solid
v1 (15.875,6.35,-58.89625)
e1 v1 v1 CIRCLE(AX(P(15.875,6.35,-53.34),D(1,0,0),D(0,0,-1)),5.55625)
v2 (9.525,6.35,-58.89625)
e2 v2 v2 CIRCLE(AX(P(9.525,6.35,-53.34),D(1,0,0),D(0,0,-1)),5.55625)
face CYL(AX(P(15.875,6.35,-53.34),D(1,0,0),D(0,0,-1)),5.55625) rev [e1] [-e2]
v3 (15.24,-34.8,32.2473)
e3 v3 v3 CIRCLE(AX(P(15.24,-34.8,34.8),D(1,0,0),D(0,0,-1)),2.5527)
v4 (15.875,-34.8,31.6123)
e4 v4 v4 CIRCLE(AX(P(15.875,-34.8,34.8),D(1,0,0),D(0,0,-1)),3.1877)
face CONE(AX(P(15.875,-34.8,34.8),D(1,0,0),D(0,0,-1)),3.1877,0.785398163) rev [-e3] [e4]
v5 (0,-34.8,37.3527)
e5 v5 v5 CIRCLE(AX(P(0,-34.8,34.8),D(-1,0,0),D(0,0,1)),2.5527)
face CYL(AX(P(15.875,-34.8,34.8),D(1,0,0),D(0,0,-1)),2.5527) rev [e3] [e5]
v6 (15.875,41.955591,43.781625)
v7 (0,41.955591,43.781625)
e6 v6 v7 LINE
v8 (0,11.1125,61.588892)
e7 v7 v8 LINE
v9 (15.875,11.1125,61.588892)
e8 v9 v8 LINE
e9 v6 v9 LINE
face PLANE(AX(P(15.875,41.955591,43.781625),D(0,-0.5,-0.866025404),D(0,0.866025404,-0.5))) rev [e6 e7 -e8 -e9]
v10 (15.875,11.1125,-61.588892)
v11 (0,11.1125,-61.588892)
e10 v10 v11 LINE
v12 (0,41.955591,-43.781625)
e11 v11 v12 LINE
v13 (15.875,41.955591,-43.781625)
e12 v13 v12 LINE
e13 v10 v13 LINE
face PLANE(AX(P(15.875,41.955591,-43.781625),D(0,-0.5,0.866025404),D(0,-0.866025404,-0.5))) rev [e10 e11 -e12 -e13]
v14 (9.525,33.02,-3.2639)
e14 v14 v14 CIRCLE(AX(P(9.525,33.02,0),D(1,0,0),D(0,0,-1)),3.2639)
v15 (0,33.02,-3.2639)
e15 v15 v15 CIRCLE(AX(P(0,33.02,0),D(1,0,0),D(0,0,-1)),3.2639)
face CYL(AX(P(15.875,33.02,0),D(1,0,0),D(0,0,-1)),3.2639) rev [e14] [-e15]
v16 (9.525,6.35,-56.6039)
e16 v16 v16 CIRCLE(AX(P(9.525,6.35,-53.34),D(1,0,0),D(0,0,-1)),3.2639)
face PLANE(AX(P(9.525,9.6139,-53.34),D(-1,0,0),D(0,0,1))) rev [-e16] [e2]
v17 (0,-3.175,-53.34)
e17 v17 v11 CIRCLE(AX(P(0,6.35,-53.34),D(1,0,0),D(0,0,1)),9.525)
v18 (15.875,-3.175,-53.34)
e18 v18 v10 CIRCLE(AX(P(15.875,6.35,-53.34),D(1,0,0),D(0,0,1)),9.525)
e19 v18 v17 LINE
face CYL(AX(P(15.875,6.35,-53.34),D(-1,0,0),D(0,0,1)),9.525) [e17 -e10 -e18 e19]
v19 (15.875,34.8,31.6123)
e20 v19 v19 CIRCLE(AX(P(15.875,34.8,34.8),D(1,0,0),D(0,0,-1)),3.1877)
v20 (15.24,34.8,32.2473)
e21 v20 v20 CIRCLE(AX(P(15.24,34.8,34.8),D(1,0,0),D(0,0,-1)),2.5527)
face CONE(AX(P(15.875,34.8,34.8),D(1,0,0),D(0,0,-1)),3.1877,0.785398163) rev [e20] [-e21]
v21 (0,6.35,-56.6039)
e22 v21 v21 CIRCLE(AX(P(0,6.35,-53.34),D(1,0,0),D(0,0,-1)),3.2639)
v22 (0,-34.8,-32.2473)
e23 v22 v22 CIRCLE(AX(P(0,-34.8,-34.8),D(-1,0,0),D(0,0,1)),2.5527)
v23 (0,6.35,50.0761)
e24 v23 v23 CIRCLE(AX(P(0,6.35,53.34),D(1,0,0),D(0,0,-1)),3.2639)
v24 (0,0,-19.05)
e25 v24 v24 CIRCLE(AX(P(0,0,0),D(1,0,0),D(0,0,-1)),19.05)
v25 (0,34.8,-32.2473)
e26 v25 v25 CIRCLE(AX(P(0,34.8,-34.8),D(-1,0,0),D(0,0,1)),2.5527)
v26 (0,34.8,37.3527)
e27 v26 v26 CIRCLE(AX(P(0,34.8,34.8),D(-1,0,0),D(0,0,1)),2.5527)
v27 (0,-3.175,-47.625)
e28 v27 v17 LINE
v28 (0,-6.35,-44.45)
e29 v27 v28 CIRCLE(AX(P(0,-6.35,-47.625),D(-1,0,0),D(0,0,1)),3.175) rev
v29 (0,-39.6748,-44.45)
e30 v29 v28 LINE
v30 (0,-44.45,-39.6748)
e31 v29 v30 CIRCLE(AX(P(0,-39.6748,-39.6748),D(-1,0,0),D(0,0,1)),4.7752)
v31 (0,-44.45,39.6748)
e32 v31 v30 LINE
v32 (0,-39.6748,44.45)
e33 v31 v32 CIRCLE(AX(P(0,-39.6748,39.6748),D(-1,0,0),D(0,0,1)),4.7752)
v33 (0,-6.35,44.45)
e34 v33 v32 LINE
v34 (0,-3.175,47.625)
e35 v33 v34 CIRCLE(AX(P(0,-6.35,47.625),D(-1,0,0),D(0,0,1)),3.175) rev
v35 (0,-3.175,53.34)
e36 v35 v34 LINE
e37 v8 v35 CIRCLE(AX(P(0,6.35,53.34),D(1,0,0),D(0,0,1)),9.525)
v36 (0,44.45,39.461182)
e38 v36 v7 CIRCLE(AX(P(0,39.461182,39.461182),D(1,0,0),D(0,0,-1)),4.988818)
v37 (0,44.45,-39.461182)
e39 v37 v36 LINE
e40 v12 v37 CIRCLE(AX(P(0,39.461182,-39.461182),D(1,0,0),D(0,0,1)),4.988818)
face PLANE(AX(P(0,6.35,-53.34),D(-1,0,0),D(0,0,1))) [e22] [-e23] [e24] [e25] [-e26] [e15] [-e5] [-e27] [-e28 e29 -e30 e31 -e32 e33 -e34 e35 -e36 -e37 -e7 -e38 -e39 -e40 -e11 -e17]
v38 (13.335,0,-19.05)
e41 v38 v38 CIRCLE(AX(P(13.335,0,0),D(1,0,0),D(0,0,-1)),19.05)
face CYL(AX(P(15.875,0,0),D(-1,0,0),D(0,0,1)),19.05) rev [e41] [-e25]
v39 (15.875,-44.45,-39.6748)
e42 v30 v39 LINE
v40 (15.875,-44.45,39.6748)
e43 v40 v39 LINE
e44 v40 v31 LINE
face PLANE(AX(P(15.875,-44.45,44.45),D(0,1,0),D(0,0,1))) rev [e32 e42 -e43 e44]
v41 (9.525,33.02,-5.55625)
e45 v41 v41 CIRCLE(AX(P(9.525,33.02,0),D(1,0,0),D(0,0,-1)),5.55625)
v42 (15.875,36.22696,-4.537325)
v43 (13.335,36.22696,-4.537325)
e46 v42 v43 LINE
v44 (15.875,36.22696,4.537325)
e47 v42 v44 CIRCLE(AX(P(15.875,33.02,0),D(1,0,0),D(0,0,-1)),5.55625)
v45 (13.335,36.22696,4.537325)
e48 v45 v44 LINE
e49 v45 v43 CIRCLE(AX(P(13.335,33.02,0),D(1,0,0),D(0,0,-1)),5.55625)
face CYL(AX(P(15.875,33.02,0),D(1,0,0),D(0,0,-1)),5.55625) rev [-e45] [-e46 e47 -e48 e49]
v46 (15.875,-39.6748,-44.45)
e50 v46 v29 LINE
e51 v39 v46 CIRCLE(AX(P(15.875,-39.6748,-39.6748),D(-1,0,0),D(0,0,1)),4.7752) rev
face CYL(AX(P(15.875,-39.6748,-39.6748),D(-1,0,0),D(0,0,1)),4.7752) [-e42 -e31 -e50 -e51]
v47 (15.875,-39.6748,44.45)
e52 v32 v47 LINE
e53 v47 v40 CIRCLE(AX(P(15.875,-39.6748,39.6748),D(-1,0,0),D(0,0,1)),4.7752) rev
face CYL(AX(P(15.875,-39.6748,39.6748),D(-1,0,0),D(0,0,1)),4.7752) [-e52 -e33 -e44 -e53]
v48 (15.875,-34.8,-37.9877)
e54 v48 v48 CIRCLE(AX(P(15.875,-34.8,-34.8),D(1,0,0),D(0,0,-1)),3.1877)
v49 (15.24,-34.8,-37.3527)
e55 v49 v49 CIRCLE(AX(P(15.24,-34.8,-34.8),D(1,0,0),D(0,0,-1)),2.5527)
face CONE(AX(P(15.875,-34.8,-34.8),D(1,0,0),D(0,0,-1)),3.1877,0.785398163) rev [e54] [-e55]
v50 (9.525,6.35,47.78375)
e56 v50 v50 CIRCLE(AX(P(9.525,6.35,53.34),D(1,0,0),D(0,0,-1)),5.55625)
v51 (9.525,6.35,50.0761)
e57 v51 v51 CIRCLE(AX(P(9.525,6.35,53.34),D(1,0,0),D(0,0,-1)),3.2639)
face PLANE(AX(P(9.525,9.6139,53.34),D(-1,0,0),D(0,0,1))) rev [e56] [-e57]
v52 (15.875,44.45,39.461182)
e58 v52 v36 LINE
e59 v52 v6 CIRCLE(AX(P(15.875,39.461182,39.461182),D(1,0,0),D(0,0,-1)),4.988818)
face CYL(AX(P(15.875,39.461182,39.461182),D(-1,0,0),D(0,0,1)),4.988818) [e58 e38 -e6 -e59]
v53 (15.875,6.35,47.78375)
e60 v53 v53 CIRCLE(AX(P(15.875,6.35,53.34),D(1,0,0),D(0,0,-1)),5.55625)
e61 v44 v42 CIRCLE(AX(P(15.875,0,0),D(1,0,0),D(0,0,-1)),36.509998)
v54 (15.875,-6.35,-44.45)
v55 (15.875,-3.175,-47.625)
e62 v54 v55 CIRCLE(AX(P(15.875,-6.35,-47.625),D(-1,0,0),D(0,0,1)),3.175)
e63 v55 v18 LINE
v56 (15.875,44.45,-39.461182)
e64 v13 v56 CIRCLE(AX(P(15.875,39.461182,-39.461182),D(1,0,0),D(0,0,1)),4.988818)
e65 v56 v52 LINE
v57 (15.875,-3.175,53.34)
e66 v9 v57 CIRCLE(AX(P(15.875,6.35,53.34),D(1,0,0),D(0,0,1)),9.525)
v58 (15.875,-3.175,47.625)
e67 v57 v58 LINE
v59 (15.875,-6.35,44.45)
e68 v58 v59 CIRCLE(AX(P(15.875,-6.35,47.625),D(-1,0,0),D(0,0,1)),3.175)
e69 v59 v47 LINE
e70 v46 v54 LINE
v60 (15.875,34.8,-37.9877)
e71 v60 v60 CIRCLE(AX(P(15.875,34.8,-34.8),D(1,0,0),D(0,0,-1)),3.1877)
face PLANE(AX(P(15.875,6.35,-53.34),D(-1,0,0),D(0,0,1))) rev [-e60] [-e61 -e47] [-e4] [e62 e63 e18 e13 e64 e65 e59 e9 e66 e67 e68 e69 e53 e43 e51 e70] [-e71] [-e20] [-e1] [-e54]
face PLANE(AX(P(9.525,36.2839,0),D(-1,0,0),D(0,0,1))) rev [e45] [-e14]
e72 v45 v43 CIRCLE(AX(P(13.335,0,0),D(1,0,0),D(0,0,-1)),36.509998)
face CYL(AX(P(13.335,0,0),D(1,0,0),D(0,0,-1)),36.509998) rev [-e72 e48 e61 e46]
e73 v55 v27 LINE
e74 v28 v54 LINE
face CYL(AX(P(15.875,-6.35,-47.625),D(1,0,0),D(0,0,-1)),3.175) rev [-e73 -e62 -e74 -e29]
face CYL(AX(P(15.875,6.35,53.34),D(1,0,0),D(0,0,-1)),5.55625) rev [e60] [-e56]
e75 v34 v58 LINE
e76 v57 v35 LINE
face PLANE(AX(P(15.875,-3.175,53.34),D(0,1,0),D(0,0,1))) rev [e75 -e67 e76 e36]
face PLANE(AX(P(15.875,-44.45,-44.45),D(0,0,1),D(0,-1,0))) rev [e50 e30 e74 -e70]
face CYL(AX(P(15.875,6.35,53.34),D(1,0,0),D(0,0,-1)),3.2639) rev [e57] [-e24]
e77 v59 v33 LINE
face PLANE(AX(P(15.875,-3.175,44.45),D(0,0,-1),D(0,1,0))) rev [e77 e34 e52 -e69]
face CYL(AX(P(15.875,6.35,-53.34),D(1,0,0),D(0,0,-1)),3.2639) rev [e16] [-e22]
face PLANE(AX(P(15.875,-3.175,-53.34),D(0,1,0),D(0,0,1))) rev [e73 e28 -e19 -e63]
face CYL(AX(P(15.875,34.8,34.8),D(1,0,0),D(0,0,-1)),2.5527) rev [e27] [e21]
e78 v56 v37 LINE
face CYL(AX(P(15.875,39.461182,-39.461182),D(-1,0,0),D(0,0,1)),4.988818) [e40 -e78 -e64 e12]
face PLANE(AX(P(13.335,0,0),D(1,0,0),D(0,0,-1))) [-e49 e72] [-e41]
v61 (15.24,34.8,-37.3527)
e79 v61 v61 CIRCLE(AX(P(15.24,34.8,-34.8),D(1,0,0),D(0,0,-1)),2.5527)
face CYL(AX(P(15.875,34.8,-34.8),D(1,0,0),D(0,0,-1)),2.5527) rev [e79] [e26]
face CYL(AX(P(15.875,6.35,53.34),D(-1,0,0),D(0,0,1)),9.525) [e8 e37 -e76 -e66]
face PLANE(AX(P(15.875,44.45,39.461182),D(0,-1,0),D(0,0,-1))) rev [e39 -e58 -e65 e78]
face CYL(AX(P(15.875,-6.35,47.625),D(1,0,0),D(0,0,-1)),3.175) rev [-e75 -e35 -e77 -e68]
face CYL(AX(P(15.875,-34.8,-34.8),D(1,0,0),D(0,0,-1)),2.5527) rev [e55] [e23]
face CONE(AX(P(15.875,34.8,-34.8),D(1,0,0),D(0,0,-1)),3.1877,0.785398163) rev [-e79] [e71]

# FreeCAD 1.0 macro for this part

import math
import FreeCAD as App
import Part
import Sketcher
from FreeCAD import Vector
Q = App.Units.Quantity


def edges_at(feature, points):
    """Names of the edges that pass closest to the given points."""
    edges = feature.Shape.Edges
    near = lambda p: min(range(len(edges)), key=lambda i: edges[i].distToShape(Part.Vertex(*p))[0])
    return sorted({f"Edge{near(p) + 1}" for p in points})

doc = App.newDocument("Part")
params = doc.addObject("Spreadsheet::Sheet", "Params")
for row, (alias, value) in enumerate([
    ("sketch1_diameter", "1.5 in"),
    ("sketch1_height", "3.5 in"),
    ("sketch1_radius", "0.375 in"),
    ("sketch1_height2", "0.35 in"),
    ("pad1_length", "0.625 in"),
    ("fillet_radius", "0.125 in"),
    ("fillet2_radius", "0.188 in"),
    ("pocket1_length", "0.1 in"),
    ("sketch3_diameter", "0.257 in"),
    ("hole_diameter", "0.257 in"),
    ("hole_cbore_diameter", "0.4375 in"),
    ("hole_cbore_depth", "0.25 in"),
    ("sketch4_diameter", "0.201 in"),
    ("hole2_diameter", "0.201 in"),
    ("hole2_depth", "0.75 in"),
    ("hole2_csink_diameter", "0.251 in"),
], start=1):
    params.set(f"A{row}", alias)
    params.set(f"B{row}", "=" + value)
    params.setAlias(f"B{row}", alias)

body = doc.addObject("PartDesign::Body", "Body")

sketch1 = doc.addObject("Sketcher::SketchObject", "Sketch")
body.addObject(sketch1)
sketch1.AttachmentSupport = (doc.YZ_Plane, [""])
sketch1.MapMode = "FlatFace"
sketch1.addGeometry([
    Part.LineSegment(Vector(44.5, -39.5, 0), Vector(44.5, 39.5, 0)),
    Part.ArcOfCircle(Part.Circle(Vector(39.5, 39.5, 0), Vector(0, 0, 1), 5), math.radians(0), math.radians(60)),
    Part.LineSegment(Vector(42, 43.8, 0), Vector(11.1, 61.6, 0)),
    Part.ArcOfCircle(Part.Circle(Vector(6.3, 53.3, 0), Vector(0, 0, 1), 9.5), math.radians(60), math.radians(180)),
    Part.LineSegment(Vector(-3.2, 53.3, 0), Vector(-3.2, 44.5, 0)),
    Part.LineSegment(Vector(-3.2, 44.5, 0), Vector(-44.5, 44.5, 0)),
    Part.LineSegment(Vector(-44.5, 44.5, 0), Vector(-44.5, -44.5, 0)),
    Part.LineSegment(Vector(-44.5, -44.5, 0), Vector(-3.2, -44.5, 0)),
    Part.LineSegment(Vector(-3.2, -44.5, 0), Vector(-3.2, -53.3, 0)),
    Part.ArcOfCircle(Part.Circle(Vector(6.3, -53.3, 0), Vector(0, 0, 1), 9.5), math.radians(180), math.radians(300)),
    Part.LineSegment(Vector(11.1, -61.6, 0), Vector(42, -43.8, 0)),
    Part.ArcOfCircle(Part.Circle(Vector(39.5, -39.5, 0), Vector(0, 0, 1), 5), math.radians(-60), math.radians(0)),
    Part.Circle(Vector(0, 0, 0), Vector(0, 0, 1), 19.1),
], False)
sketch1.addConstraint([
    Sketcher.Constraint("Tangent", 0, 2, 1, 1),
    Sketcher.Constraint("Tangent", 1, 2, 2, 1),
    Sketcher.Constraint("Tangent", 2, 2, 3, 1),
    Sketcher.Constraint("Tangent", 3, 2, 4, 1),
    Sketcher.Constraint("Coincident", 4, 2, 5, 1),
    Sketcher.Constraint("Coincident", 5, 2, 6, 1),
    Sketcher.Constraint("Coincident", 6, 2, 7, 1),
    Sketcher.Constraint("Coincident", 7, 2, 8, 1),
    Sketcher.Constraint("Tangent", 8, 2, 9, 1),
    Sketcher.Constraint("Tangent", 9, 2, 10, 1),
    Sketcher.Constraint("Tangent", 10, 2, 11, 1),
    Sketcher.Constraint("Tangent", 11, 2, 0, 1),
    Sketcher.Constraint("Vertical", 0),
    Sketcher.Constraint("Vertical", 4),
    Sketcher.Constraint("Horizontal", 5),
    Sketcher.Constraint("Vertical", 6),
    Sketcher.Constraint("Horizontal", 7),
    Sketcher.Constraint("Vertical", 8),
    Sketcher.Constraint("Coincident", 12, 3, -1, 1),
    Sketcher.Constraint("Equal", 3, 9),
    Sketcher.Constraint("Equal", 1, 11),
    Sketcher.Constraint("Symmetric", 3, 3, 9, 3, -1),
    Sketcher.Constraint("Vertical", 2, 2, 9, 2),
    Sketcher.Constraint("Equal", 4, 8),
    Sketcher.Constraint("Diameter", 12, Q("1.5 in")),
    Sketcher.Constraint("DistanceY", 6, 2, 6, 1, Q("3.5 in")),
    Sketcher.Constraint("Angle", 2, Q("150 deg")),
    Sketcher.Constraint("Radius", 3, Q("0.375 in")),
    Sketcher.Constraint("DistanceX", 5, 2, 3, 3, Q("2 in")),
    Sketcher.Constraint("DistanceY", 4, 2, 4, 1, Q("0.35 in")),
    Sketcher.Constraint("DistanceX", 3, 3, 0, 2, Q("1.5 in")),
    Sketcher.Constraint("DistanceX", -1, 1, 3, 3, Q("0.25 in")),
    Sketcher.Constraint("Radius", 1, 4.988818),
])
sketch1.setExpression("Constraints[24]", "Params.sketch1_diameter")
sketch1.setExpression("Constraints[25]", "Params.sketch1_height")
sketch1.setExpression("Constraints[27]", "Params.sketch1_radius")
sketch1.setExpression("Constraints[29]", "Params.sketch1_height2")
pad1 = doc.addObject("PartDesign::Pad", "Pad")
body.addObject(pad1)
pad1.Profile = sketch1
pad1.setExpression("Length", "Params.pad1_length")
doc.recompute()

fillet = doc.addObject("PartDesign::Fillet", "Fillet")
body.addObject(fillet)
fillet.Base = (pad1, edges_at(pad1, [(7.938, -3.175, 44.45), (7.938, -3.175, -44.45)]))
fillet.setExpression("Radius", "Params.fillet_radius")
doc.recompute()

fillet2 = doc.addObject("PartDesign::Fillet", "Fillet001")
body.addObject(fillet2)
fillet2.Base = (fillet, edges_at(fillet, [(7.938, -44.45, 44.45), (7.938, -44.45, -44.45)]))
fillet2.setExpression("Radius", "Params.fillet2_radius")

sketch2 = doc.addObject("Sketcher::SketchObject", "Sketch001")
body.addObject(sketch2)
sketch2.AttachmentSupport = (doc.YZ_Plane, [""])
sketch2.MapMode = "FlatFace"
sketch2.AttachmentOffset = App.Placement(Vector(0, 0, 0.625 * 25.4), App.Rotation())
sketch2.addGeometry(Part.Circle(Vector(0, 0, 0), Vector(0, 0, 1), 37), False)
sketch2.addConstraint([
    Sketcher.Constraint("Coincident", 0, 3, -1, 1),
    Sketcher.Constraint("Diameter", 0, 73.019996),
])
pocket1 = doc.addObject("PartDesign::Pocket", "Pocket")
body.addObject(pocket1)
pocket1.Profile = sketch2
pocket1.setExpression("Length", "Params.pocket1_length")

sketch3 = doc.addObject("Sketcher::SketchObject", "Sketch002")
body.addObject(sketch3)
sketch3.AttachmentSupport = (doc.YZ_Plane, [""])
sketch3.MapMode = "FlatFace"
sketch3.AttachmentOffset = App.Placement(Vector(0, 0, 0.625 * 25.4), App.Rotation())
sketch3.addGeometry([
    Part.Circle(Vector(6.3, 53.3, 0), Vector(0, 0, 1), 3.3),
    Part.Circle(Vector(6.3, -53.3, 0), Vector(0, 0, 1), 3.3),
    Part.Circle(Vector(33, 0, 0), Vector(0, 0, 1), 3.3),
], False)
sketch3.addConstraint([
    Sketcher.Constraint("Equal", 0, 1),
    Sketcher.Constraint("Equal", 1, 2),
    Sketcher.Constraint("Symmetric", 0, 3, 1, 3, -1),
    Sketcher.Constraint("PointOnObject", 2, 3, -1),
    Sketcher.Constraint("Diameter", 0, Q("0.257 in")),
    Sketcher.Constraint("DistanceY", -1, 1, 0, 3, Q("2.1 in")),
    Sketcher.Constraint("DistanceX", -1, 1, 2, 3, Q("1.3 in")),
    Sketcher.Constraint("DistanceX", -1, 1, 0, 3, Q("0.25 in")),
])
sketch3.setExpression("Constraints[4]", "Params.sketch3_diameter")
doc.recompute()
hole = doc.addObject("PartDesign::Hole", "Hole")
body.addObject(hole)
hole.Profile = sketch3
hole.ThreadType = "None"
hole.setExpression("Diameter", "Params.hole_diameter")
hole.DepthType = "ThroughAll"
hole.HoleCutType = "Counterbore"
hole.setExpression("HoleCutDiameter", "Params.hole_cbore_diameter")
hole.setExpression("HoleCutDepth", "Params.hole_cbore_depth")

sketch4 = doc.addObject("Sketcher::SketchObject", "Sketch003")
body.addObject(sketch4)
sketch4.AttachmentSupport = (doc.YZ_Plane, [""])
sketch4.MapMode = "FlatFace"
sketch4.AttachmentOffset = App.Placement(Vector(0, 0, 0.625 * 25.4), App.Rotation())
sketch4.addGeometry([
    Part.Circle(Vector(-34.8, -34.8, 0), Vector(0, 0, 1), 2.6),
    Part.Circle(Vector(34.8, 34.8, 0), Vector(0, 0, 1), 2.6),
    Part.Circle(Vector(-34.8, 34.8, 0), Vector(0, 0, 1), 2.6),
    Part.Circle(Vector(34.8, -34.8, 0), Vector(0, 0, 1), 2.6),
], False)
sketch4.addConstraint([
    Sketcher.Constraint("Equal", 0, 1),
    Sketcher.Constraint("Equal", 1, 2),
    Sketcher.Constraint("Equal", 2, 3),
    Sketcher.Constraint("Symmetric", 0, 3, 1, 3, -1, 1),
    Sketcher.Constraint("Symmetric", 2, 3, 3, 3, -1, 1),
    Sketcher.Constraint("Symmetric", 1, 3, 2, 3, -2),
    Sketcher.Constraint("Diameter", 0, Q("0.201 in")),
    Sketcher.Constraint("DistanceX", 0, 3, -1, 1, 34.8),
    Sketcher.Constraint("DistanceY", 0, 3, -1, 1, 34.8),
])
sketch4.setExpression("Constraints[6]", "Params.sketch4_diameter")
doc.recompute()
hole2 = doc.addObject("PartDesign::Hole", "Hole001")
body.addObject(hole2)
hole2.Profile = sketch4
hole2.ThreadType = "None"
hole2.setExpression("Diameter", "Params.hole2_diameter")
hole2.DepthType = "Dimension"
hole2.setExpression("Depth", "Params.hole2_depth")
hole2.DrillPoint = "Angled"
hole2.DrillPointAngle = 118
hole2.HoleCutType = "Countersink"
hole2.setExpression("HoleCutDiameter", "Params.hole2_csink_diameter")
hole2.HoleCutCountersinkAngle = 90

doc.recompute()
